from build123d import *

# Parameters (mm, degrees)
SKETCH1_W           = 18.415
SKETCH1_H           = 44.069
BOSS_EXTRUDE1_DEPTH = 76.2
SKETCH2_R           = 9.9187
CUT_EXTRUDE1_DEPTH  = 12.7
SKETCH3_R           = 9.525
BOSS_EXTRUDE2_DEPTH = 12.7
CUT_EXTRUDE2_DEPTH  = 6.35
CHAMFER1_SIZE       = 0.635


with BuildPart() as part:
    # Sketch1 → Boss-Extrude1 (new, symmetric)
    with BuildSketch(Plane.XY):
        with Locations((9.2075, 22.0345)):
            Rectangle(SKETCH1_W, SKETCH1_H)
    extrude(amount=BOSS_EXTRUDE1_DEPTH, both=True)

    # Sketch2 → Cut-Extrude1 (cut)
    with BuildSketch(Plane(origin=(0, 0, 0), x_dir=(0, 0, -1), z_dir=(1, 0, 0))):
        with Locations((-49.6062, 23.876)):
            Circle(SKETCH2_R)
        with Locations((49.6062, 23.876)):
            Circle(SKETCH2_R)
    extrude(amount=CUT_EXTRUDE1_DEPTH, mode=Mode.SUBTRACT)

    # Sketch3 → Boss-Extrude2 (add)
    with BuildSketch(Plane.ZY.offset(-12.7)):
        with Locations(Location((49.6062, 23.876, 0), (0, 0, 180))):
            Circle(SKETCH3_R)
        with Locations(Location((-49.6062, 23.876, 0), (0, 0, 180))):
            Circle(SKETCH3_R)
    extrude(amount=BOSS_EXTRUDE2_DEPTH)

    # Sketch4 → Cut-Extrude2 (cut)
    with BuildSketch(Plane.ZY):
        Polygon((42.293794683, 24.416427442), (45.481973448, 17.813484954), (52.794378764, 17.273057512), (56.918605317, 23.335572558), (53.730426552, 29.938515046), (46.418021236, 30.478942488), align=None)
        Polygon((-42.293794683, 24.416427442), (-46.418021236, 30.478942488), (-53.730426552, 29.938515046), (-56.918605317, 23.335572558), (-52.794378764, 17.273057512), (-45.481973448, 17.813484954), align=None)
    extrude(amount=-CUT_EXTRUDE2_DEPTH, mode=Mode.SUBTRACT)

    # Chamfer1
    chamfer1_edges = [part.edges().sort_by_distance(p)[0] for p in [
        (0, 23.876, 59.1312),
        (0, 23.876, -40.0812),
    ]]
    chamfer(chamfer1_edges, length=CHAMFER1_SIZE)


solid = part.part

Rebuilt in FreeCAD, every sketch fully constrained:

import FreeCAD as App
import Part
import Sketcher

V = App.Vector
Q = App.Units.Quantity


def edges_at(feature, points):
    """Names of the edges that pass closest to the given points."""
    edges = feature.Shape.Edges
    near = lambda p: min(range(len(edges)), key=lambda i: edges[i].distToShape(Part.Vertex(*p))[0])
    return sorted({f"Edge{near(p) + 1}" for p in points})

doc = App.newDocument("Part")
body = doc.addObject("PartDesign::Body", "Body")

# Sketch on XY plane
sketch1 = body.newObject("Sketcher::SketchObject", "Sketch")
sketch1.AttachmentSupport = (doc.getObject("XY_Plane"), [""])
sketch1.MapMode = "FlatFace"
sketch1.addGeometry([
    Part.LineSegment(V(0, 44.069, 0), V(0, 0, 0)),
    Part.LineSegment(V(0, 0, 0), V(18.415, 0, 0)),
    Part.LineSegment(V(18.415, 0, 0), V(18.415, 44.069, 0)),
    Part.LineSegment(V(18.415, 44.069, 0), V(0, 44.069, 0)),
], False)
sketch1.addConstraint([
    Sketcher.Constraint("Coincident", 0, 2, 1, 1),
    Sketcher.Constraint("Coincident", 1, 2, 2, 1),
    Sketcher.Constraint("Coincident", 2, 2, 3, 1),
    Sketcher.Constraint("Coincident", 3, 2, 0, 1),
    Sketcher.Constraint("Vertical", 0),
    Sketcher.Constraint("Horizontal", 1),
    Sketcher.Constraint("Vertical", 2),
    Sketcher.Constraint("Horizontal", 3),
    Sketcher.Constraint("Coincident", 0, 2, -1, 1),
    Sketcher.Constraint("DistanceX", 1, 1, 1, 2, Q("0.725 in")),
    Sketcher.Constraint("DistanceY", 0, 2, 0, 1, Q("1.735 in")),
])
pad1 = body.newObject("PartDesign::Pad", "Pad")
pad1.Profile = sketch1
pad1.Length = Q("6 in")
pad1.Midplane = True

# Sketch on YZ plane
sketch2 = body.newObject("Sketcher::SketchObject", "Sketch001")
sketch2.AttachmentSupport = (doc.getObject("YZ_Plane"), [""])
sketch2.MapMode = "FlatFace"
sketch2.addGeometry([
    Part.Circle(V(23.876, 49.6062, 0), V(0, 0, 1), 9.9187),
    Part.Circle(V(23.876, -49.6062, 0), V(0, 0, 1), 9.9187),
], False)
sketch2.addConstraint([
    Sketcher.Constraint("Equal", 0, 1),
    Sketcher.Constraint("Symmetric", 0, 3, 1, 3, -1),
    Sketcher.Constraint("Diameter", 0, Q("0.781 in")),
    Sketcher.Constraint("DistanceX", -1, 1, 0, 3, Q("0.94 in")),
    Sketcher.Constraint("DistanceY", -1, 1, 0, 3, Q("1.953 in")),
])
pocket1 = body.newObject("PartDesign::Pocket", "Pocket")
pocket1.Profile = sketch2
pocket1.Length = Q("0.5 in")
pocket1.Reversed = True

# Sketch on YZ plane
sketch3 = body.newObject("Sketcher::SketchObject", "Sketch002")
sketch3.AttachmentSupport = (doc.getObject("YZ_Plane"), [""])
sketch3.MapMode = "FlatFace"
sketch3.AttachmentOffset = App.Placement(V(0, 0, 0.5 * 25.4), App.Rotation())
sketch3.addGeometry([
    Part.Circle(V(23.876, 49.6062, 0), V(0, 0, 1), 9.525),
    Part.Circle(V(23.876, -49.6062, 0), V(0, 0, 1), 9.525),
], False)
sketch3.addConstraint([
    Sketcher.Constraint("Equal", 0, 1),
    Sketcher.Constraint("Symmetric", 0, 3, 1, 3, -1),
    Sketcher.Constraint("Diameter", 0, Q("0.75 in")),
    Sketcher.Constraint("DistanceX", -1, 1, 0, 3, Q("0.94 in")),
    Sketcher.Constraint("DistanceY", -1, 1, 0, 3, Q("1.953 in")),
])
pad2 = body.newObject("PartDesign::Pad", "Pad001")
pad2.Profile = sketch3
pad2.Length = Q("0.5 in")
pad2.Reversed = True

# Sketch on YZ plane
sketch4 = body.newObject("Sketcher::SketchObject", "Sketch003")
sketch4.AttachmentSupport = (doc.getObject("YZ_Plane"), [""])
sketch4.MapMode = "FlatFace"
sketch4.addGeometry([
    Part.LineSegment(V(24.416427, 42.293795, 0), V(17.813485, 45.481973, 0)),  # 0
    Part.LineSegment(V(17.813485, 45.481973, 0), V(17.273058, 52.794379, 0)),  # 1
    Part.LineSegment(V(17.273058, 52.794379, 0), V(23.335573, 56.918605, 0)),  # 2
    Part.LineSegment(V(23.335573, 56.918605, 0), V(29.938515, 53.730427, 0)),  # 3
    Part.LineSegment(V(29.938515, 53.730427, 0), V(30.478942, 46.418021, 0)),  # 4
    Part.LineSegment(V(30.478942, 46.418021, 0), V(24.416427, 42.293795, 0)),  # 5
    Part.LineSegment(V(24.416427, -42.293795, 0), V(30.478942, -46.418021, 0)),  # 6
    Part.LineSegment(V(30.478942, -46.418021, 0), V(29.938515, -53.730427, 0)),  # 7
    Part.LineSegment(V(29.938515, -53.730427, 0), V(23.335573, -56.918605, 0)),  # 8
    Part.LineSegment(V(23.335573, -56.918605, 0), V(17.273058, -52.794379, 0)),  # 9
    Part.LineSegment(V(17.273058, -52.794379, 0), V(17.813485, -45.481973, 0)),  # 10
    Part.LineSegment(V(17.813485, -45.481973, 0), V(24.416427, -42.293795, 0)),  # 11
], False)
sketch4.addConstraint([
    Sketcher.Constraint("Coincident", 0, 2, 1, 1),
    Sketcher.Constraint("Coincident", 1, 2, 2, 1),
    Sketcher.Constraint("Coincident", 2, 2, 3, 1),
    Sketcher.Constraint("Coincident", 3, 2, 4, 1),
    Sketcher.Constraint("Coincident", 4, 2, 5, 1),
    Sketcher.Constraint("Coincident", 5, 2, 0, 1),
    Sketcher.Constraint("Coincident", 6, 2, 7, 1),
    Sketcher.Constraint("Coincident", 7, 2, 8, 1),
    Sketcher.Constraint("Coincident", 8, 2, 9, 1),
    Sketcher.Constraint("Coincident", 9, 2, 10, 1),
    Sketcher.Constraint("Coincident", 10, 2, 11, 1),
    Sketcher.Constraint("Coincident", 11, 2, 6, 1),
    Sketcher.Constraint("Symmetric", 4, 2, 6, 2, -1),
    Sketcher.Constraint("Symmetric", 3, 2, 7, 2, -1),
    Sketcher.Constraint("Symmetric", 2, 2, 8, 2, -1),
    Sketcher.Constraint("Symmetric", 1, 2, 9, 2, -1),
    Sketcher.Constraint("Symmetric", 0, 2, 10, 2, -1),
    Sketcher.Constraint("Symmetric", 5, 2, 11, 2, -1),
    Sketcher.Constraint("Parallel", 0, 3),
    Sketcher.Constraint("Parallel", 1, 4),
    Sketcher.Constraint("Parallel", 2, 5),
    Sketcher.Constraint("Equal", 0, 1),
    Sketcher.Constraint("Equal", 1, 2),
    Sketcher.Constraint("Equal", 2, 3),
    Sketcher.Constraint("DistanceY", 6, 2, 1, 2, Q("3.906 in")),
    Sketcher.Constraint("Distance", 0, Q("7.332348 mm")),
    Sketcher.Constraint("DistanceY", -1, 1, 1, 2, Q("52.794379 mm")),
    Sketcher.Constraint("DistanceY", 0, 2, 2, 2, Q("11.436632 mm")),
    Sketcher.Constraint("DistanceY", 3, 2, 2, 2, Q("3.188179 mm")),
    Sketcher.Constraint("DistanceX", -1, 1, 0, 2, Q("17.813485 mm")),
])
pocket2 = body.newObject("PartDesign::Pocket", "Pocket001")
pocket2.Profile = sketch4
pocket2.Length = Q("0.25 in")
pocket2.Reversed = True
doc.recompute()

chamfer = body.newObject("PartDesign::Chamfer", "Chamfer")
chamfer.Base = (pocket2, edges_at(pocket2, [(0, 23.876, 59.131), (0, 23.876, -40.081)]))
chamfer.Size = Q("0.025 in")

doc.recompute()
